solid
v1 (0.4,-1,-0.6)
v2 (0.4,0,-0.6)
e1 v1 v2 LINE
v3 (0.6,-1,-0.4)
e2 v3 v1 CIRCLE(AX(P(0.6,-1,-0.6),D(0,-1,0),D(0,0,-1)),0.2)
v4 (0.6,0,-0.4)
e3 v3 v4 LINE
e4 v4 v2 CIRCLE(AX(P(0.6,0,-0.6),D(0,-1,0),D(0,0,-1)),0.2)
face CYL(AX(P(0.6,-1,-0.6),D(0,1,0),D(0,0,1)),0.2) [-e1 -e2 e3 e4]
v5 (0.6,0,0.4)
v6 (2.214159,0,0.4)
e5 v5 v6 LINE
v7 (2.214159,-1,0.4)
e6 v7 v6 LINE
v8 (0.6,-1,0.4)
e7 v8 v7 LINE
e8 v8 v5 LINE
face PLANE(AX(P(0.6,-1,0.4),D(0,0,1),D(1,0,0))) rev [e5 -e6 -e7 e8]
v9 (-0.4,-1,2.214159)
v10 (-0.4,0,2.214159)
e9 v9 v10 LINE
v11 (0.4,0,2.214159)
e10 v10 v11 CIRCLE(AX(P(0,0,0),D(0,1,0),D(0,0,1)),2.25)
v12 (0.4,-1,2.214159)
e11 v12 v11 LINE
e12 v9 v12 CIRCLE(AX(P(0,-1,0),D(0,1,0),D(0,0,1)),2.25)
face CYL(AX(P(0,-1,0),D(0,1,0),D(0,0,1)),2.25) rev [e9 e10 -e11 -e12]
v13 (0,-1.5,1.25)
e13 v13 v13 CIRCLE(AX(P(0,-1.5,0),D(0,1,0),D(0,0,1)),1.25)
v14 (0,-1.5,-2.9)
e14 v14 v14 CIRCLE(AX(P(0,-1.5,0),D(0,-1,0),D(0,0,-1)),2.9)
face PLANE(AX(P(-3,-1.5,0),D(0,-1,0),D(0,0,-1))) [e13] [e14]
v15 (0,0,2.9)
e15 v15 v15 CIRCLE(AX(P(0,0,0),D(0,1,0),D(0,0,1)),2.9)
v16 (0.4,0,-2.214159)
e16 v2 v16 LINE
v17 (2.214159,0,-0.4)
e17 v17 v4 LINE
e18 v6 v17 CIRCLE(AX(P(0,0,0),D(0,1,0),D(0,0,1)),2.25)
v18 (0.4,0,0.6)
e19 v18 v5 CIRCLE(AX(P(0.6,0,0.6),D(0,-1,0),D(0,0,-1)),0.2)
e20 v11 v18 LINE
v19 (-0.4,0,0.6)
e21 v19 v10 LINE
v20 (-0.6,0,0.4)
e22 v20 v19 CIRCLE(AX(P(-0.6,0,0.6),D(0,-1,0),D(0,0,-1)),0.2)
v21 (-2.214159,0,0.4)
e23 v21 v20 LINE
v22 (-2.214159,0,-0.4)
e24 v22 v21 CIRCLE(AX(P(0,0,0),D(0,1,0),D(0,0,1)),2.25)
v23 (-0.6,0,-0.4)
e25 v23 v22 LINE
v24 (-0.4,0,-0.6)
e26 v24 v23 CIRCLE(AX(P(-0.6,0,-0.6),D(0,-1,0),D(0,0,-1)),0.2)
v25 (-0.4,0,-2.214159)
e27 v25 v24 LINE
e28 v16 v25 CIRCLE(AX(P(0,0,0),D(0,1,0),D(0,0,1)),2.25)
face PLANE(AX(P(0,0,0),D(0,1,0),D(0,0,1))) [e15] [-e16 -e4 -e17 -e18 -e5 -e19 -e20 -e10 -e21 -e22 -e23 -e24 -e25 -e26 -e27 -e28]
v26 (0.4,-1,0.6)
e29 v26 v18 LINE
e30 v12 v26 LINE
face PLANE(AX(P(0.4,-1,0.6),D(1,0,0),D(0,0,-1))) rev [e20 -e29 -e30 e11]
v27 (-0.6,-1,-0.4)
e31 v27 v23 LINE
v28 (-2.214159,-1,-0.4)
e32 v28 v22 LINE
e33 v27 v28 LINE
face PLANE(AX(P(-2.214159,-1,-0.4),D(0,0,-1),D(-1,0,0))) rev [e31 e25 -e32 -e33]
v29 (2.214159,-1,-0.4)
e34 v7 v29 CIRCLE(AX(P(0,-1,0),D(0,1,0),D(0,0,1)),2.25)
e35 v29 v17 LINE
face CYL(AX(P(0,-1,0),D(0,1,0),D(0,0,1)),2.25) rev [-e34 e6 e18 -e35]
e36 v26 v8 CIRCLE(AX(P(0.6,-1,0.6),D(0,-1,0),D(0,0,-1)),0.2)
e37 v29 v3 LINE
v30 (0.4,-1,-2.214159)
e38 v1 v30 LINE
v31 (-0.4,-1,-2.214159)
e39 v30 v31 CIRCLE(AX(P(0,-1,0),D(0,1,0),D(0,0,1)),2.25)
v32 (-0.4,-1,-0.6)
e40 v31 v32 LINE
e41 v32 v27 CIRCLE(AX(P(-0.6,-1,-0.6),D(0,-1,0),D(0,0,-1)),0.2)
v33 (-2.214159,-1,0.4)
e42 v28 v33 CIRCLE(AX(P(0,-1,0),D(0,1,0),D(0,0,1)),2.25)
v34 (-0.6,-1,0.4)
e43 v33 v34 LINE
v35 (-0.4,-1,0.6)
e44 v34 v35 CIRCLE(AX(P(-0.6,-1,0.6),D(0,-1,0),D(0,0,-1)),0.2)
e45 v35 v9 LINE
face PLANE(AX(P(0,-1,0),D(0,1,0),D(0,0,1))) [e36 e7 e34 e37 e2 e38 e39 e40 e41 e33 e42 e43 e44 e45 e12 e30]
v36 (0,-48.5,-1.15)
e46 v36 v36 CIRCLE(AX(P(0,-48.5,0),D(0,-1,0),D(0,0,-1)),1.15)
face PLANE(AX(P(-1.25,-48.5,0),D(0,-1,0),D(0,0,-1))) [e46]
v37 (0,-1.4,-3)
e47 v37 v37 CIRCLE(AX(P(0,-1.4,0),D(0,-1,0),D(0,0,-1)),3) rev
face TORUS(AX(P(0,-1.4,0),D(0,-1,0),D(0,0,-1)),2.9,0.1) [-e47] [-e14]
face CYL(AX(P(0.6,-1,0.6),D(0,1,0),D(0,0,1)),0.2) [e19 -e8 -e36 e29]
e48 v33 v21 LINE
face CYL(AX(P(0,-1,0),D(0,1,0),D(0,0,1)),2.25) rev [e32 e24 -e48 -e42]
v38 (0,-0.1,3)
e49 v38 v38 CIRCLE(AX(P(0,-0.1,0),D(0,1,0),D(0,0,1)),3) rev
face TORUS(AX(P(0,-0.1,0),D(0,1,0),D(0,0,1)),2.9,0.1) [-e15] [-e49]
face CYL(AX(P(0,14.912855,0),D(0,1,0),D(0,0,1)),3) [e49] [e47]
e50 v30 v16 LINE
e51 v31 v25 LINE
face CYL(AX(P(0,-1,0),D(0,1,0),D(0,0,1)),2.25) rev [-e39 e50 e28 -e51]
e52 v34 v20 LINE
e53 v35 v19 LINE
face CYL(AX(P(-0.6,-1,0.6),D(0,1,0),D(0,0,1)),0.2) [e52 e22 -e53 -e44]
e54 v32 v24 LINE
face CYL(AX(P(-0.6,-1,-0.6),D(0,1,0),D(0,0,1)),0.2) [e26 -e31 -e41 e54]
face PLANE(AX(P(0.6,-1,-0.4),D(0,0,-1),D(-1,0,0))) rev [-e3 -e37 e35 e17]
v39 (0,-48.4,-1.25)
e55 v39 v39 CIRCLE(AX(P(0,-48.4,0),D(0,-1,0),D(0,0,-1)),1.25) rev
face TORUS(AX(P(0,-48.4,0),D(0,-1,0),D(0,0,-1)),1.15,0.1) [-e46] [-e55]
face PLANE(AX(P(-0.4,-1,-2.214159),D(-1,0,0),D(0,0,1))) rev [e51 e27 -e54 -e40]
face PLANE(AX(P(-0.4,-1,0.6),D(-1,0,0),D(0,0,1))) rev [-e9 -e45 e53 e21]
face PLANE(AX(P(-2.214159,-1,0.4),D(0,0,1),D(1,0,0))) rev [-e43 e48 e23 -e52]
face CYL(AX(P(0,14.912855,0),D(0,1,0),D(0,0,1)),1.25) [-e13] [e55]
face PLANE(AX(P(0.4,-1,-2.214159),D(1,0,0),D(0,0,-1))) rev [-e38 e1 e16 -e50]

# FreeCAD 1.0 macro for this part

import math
import FreeCAD as App
import Part
import Sketcher

V = App.Vector


def edges_at(feature, points):
    """Names of the edges that pass closest to the given points."""
    edges = feature.Shape.Edges
    near = lambda p: min(range(len(edges)), key=lambda i: edges[i].distToShape(Part.Vertex(*p))[0])
    return sorted({f"Edge{near(p) + 1}" for p in points})

doc = App.newDocument("Part")
body = doc.addObject("PartDesign::Body", "Body")

sketch1 = body.newObject("Sketcher::SketchObject", "Sketch")
sketch1.AttachmentSupport = (doc.getObject("XY_Plane"), [""])
sketch1.MapMode = "FlatFace"
sketch1.addGeometry(Part.LineSegment(V(0, 0, 0), V(-3, 0, 0)), False)
sketch1.addGeometry(Part.LineSegment(V(-3, 0, 0), V(-3, -1.5, 0)), False)
sketch1.addGeometry(Part.LineSegment(V(-3, -1.5, 0), V(-1.25, -1.5, 0)), False)
sketch1.addGeometry(Part.LineSegment(V(-1.25, -1.5, 0), V(-1.25, -48.5, 0)), False)
sketch1.addGeometry(Part.LineSegment(V(-1.25, -48.5, 0), V(0, -48.5, 0)), False)
sketch1.addGeometry(Part.LineSegment(V(0, -48.5, 0), V(0, 0, 0)), False)
sketch1.addConstraint(Sketcher.Constraint("Coincident", 0, 2, 1, 1))
sketch1.addConstraint(Sketcher.Constraint("Coincident", 1, 2, 2, 1))
sketch1.addConstraint(Sketcher.Constraint("Coincident", 2, 2, 3, 1))
sketch1.addConstraint(Sketcher.Constraint("Coincident", 3, 2, 4, 1))
sketch1.addConstraint(Sketcher.Constraint("Coincident", 4, 2, 5, 1))
sketch1.addConstraint(Sketcher.Constraint("Coincident", 5, 2, 0, 1))
sketch1.addConstraint(Sketcher.Constraint("Horizontal", 0))
sketch1.addConstraint(Sketcher.Constraint("Vertical", 1))
sketch1.addConstraint(Sketcher.Constraint("Horizontal", 2))
sketch1.addConstraint(Sketcher.Constraint("Vertical", 3))
sketch1.addConstraint(Sketcher.Constraint("Horizontal", 4))
sketch1.addConstraint(Sketcher.Constraint("Vertical", 5))
sketch1.addConstraint(Sketcher.Constraint("Coincident", 5, 2, -1, 1))
sketch1.addConstraint(Sketcher.Constraint("DistanceX", 0, 2, 0, 1, 3.0))
sketch1.addConstraint(Sketcher.Constraint("DistanceY", 3, 2, 3, 1, 47.0))
sketch1.addConstraint(Sketcher.Constraint("DistanceY", 1, 2, 1, 1, 1.5))
sketch1.addConstraint(Sketcher.Constraint("DistanceX", 2, 1, 2, 2, 1.75))
revolution = body.newObject("PartDesign::Revolution", "Revolution")
revolution.Profile = sketch1
revolution.ReferenceAxis = (sketch1, ["V_Axis"])
revolution.Angle = 360
doc.recompute()

fillet = body.newObject("PartDesign::Fillet", "Fillet")
fillet.Base = (revolution, edges_at(revolution, [(0, -48.5, -1.25), (0, -1.5, -3), (0, 0, -3)]))
fillet.Radius = 0.1

sketch2 = body.newObject("Sketcher::SketchObject", "Sketch001")
sketch2.AttachmentSupport = (doc.getObject("XZ_Plane"), [""])
sketch2.MapMode = "FlatFace"
sketch2.addGeometry(Part.LineSegment(V(-2.214159, 0.4, 0), V(-0.6, 0.4, 0)), False)
sketch2.addGeometry(Part.ArcOfCircle(Part.Circle(V(-0.6, 0.6, 0), V(0, 0, 1), 0.2), math.radians(-90), math.radians(0)), False)
sketch2.addGeometry(Part.LineSegment(V(-0.4, 0.6, 0), V(-0.4, 2.214159, 0)), False)
sketch2.addGeometry(Part.ArcOfCircle(Part.Circle(V(0, 0, 0), V(0, 0, 1), 2.25), math.radians(79.759652), math.radians(100.240348)), False)
sketch2.addGeometry(Part.LineSegment(V(0.4, 2.214159, 0), V(0.4, 0.6, 0)), False)
sketch2.addGeometry(Part.ArcOfCircle(Part.Circle(V(0.6, 0.6, 0), V(0, 0, 1), 0.2), math.radians(-180), math.radians(-90)), False)
sketch2.addGeometry(Part.LineSegment(V(0.6, 0.4, 0), V(2.214159, 0.4, 0)), False)
sketch2.addGeometry(Part.ArcOfCircle(Part.Circle(V(0, 0, 0), V(0, 0, 1), 2.25), math.radians(-10.240348), math.radians(10.240348)), False)
sketch2.addGeometry(Part.LineSegment(V(2.214159, -0.4, 0), V(0.6, -0.4, 0)), False)
sketch2.addGeometry(Part.ArcOfCircle(Part.Circle(V(0.6, -0.6, 0), V(0, 0, 1), 0.2), math.radians(90), math.radians(180)), False)
sketch2.addGeometry(Part.LineSegment(V(0.4, -0.6, 0), V(0.4, -2.214159, 0)), False)
sketch2.addGeometry(Part.ArcOfCircle(Part.Circle(V(0, 0, 0), V(0, 0, 1), 2.25), math.radians(-100.240348), math.radians(-79.759652)), False)
sketch2.addGeometry(Part.LineSegment(V(-0.4, -2.214159, 0), V(-0.4, -0.6, 0)), False)
sketch2.addGeometry(Part.ArcOfCircle(Part.Circle(V(-0.6, -0.6, 0), V(0, 0, 1), 0.2), math.radians(0), math.radians(90)), False)
sketch2.addGeometry(Part.LineSegment(V(-0.6, -0.4, 0), V(-2.214159, -0.4, 0)), False)
sketch2.addGeometry(Part.ArcOfCircle(Part.Circle(V(0, 0, 0), V(0, 0, 1), 2.25), math.radians(169.759652), math.radians(190.240348)), False)
sketch2.addConstraint(Sketcher.Constraint("Tangent", 0, 2, 1, 1))
sketch2.addConstraint(Sketcher.Constraint("Tangent", 1, 2, 2, 1))
sketch2.addConstraint(Sketcher.Constraint("Coincident", 2, 2, 3, 2))
sketch2.addConstraint(Sketcher.Constraint("Coincident", 3, 1, 4, 1))
sketch2.addConstraint(Sketcher.Constraint("Tangent", 4, 2, 5, 1))
sketch2.addConstraint(Sketcher.Constraint("Tangent", 5, 2, 6, 1))
sketch2.addConstraint(Sketcher.Constraint("Coincident", 6, 2, 7, 2))
sketch2.addConstraint(Sketcher.Constraint("Coincident", 7, 1, 8, 1))
sketch2.addConstraint(Sketcher.Constraint("Tangent", 8, 2, 9, 1))
sketch2.addConstraint(Sketcher.Constraint("Tangent", 9, 2, 10, 1))
sketch2.addConstraint(Sketcher.Constraint("Coincident", 10, 2, 11, 2))
sketch2.addConstraint(Sketcher.Constraint("Coincident", 11, 1, 12, 1))
sketch2.addConstraint(Sketcher.Constraint("Tangent", 12, 2, 13, 1))
sketch2.addConstraint(Sketcher.Constraint("Tangent", 13, 2, 14, 1))
sketch2.addConstraint(Sketcher.Constraint("Coincident", 14, 2, 15, 2))
sketch2.addConstraint(Sketcher.Constraint("Coincident", 15, 1, 0, 1))
sketch2.addConstraint(Sketcher.Constraint("Horizontal", 0))
sketch2.addConstraint(Sketcher.Constraint("Vertical", 2))
sketch2.addConstraint(Sketcher.Constraint("Vertical", 4))
sketch2.addConstraint(Sketcher.Constraint("Horizontal", 6))
sketch2.addConstraint(Sketcher.Constraint("Horizontal", 8))
sketch2.addConstraint(Sketcher.Constraint("Vertical", 10))
sketch2.addConstraint(Sketcher.Constraint("Vertical", 12))
sketch2.addConstraint(Sketcher.Constraint("Horizontal", 14))
sketch2.addConstraint(Sketcher.Constraint("Coincident", 3, 3, -1, 1))
sketch2.addConstraint(Sketcher.Constraint("Coincident", 7, 3, -1, 1))
sketch2.addConstraint(Sketcher.Constraint("Coincident", 11, 3, -1, 1))
sketch2.addConstraint(Sketcher.Constraint("Coincident", 15, 3, -1, 1))
sketch2.addConstraint(Sketcher.Constraint("Equal", 1, 5))
sketch2.addConstraint(Sketcher.Constraint("Equal", 3, 7))
sketch2.addConstraint(Sketcher.Constraint("Equal", 5, 9))
sketch2.addConstraint(Sketcher.Constraint("Equal", 7, 11))
sketch2.addConstraint(Sketcher.Constraint("Equal", 9, 13))
sketch2.addConstraint(Sketcher.Constraint("Equal", 11, 15))
sketch2.addConstraint(Sketcher.Constraint("Symmetric", 1, 3, 9, 3, -1, 1))
sketch2.addConstraint(Sketcher.Constraint("Symmetric", 5, 3, 13, 3, -1, 1))
sketch2.addConstraint(Sketcher.Constraint("Symmetric", 1, 3, 5, 3, -2))
sketch2.addConstraint(Sketcher.Constraint("Equal", 14, 2))
sketch2.addConstraint(Sketcher.Constraint("Radius", 1, 0.2))
sketch2.addConstraint(Sketcher.Constraint("Radius", 3, 2.25))
sketch2.addConstraint(Sketcher.Constraint("DistanceX", 2, 2, 5, 3, 1.0))
pocket1 = body.newObject("PartDesign::Pocket", "Pocket")
pocket1.Profile = sketch2
pocket1.Length = 1
pocket1.Reversed = True

doc.recompute()
